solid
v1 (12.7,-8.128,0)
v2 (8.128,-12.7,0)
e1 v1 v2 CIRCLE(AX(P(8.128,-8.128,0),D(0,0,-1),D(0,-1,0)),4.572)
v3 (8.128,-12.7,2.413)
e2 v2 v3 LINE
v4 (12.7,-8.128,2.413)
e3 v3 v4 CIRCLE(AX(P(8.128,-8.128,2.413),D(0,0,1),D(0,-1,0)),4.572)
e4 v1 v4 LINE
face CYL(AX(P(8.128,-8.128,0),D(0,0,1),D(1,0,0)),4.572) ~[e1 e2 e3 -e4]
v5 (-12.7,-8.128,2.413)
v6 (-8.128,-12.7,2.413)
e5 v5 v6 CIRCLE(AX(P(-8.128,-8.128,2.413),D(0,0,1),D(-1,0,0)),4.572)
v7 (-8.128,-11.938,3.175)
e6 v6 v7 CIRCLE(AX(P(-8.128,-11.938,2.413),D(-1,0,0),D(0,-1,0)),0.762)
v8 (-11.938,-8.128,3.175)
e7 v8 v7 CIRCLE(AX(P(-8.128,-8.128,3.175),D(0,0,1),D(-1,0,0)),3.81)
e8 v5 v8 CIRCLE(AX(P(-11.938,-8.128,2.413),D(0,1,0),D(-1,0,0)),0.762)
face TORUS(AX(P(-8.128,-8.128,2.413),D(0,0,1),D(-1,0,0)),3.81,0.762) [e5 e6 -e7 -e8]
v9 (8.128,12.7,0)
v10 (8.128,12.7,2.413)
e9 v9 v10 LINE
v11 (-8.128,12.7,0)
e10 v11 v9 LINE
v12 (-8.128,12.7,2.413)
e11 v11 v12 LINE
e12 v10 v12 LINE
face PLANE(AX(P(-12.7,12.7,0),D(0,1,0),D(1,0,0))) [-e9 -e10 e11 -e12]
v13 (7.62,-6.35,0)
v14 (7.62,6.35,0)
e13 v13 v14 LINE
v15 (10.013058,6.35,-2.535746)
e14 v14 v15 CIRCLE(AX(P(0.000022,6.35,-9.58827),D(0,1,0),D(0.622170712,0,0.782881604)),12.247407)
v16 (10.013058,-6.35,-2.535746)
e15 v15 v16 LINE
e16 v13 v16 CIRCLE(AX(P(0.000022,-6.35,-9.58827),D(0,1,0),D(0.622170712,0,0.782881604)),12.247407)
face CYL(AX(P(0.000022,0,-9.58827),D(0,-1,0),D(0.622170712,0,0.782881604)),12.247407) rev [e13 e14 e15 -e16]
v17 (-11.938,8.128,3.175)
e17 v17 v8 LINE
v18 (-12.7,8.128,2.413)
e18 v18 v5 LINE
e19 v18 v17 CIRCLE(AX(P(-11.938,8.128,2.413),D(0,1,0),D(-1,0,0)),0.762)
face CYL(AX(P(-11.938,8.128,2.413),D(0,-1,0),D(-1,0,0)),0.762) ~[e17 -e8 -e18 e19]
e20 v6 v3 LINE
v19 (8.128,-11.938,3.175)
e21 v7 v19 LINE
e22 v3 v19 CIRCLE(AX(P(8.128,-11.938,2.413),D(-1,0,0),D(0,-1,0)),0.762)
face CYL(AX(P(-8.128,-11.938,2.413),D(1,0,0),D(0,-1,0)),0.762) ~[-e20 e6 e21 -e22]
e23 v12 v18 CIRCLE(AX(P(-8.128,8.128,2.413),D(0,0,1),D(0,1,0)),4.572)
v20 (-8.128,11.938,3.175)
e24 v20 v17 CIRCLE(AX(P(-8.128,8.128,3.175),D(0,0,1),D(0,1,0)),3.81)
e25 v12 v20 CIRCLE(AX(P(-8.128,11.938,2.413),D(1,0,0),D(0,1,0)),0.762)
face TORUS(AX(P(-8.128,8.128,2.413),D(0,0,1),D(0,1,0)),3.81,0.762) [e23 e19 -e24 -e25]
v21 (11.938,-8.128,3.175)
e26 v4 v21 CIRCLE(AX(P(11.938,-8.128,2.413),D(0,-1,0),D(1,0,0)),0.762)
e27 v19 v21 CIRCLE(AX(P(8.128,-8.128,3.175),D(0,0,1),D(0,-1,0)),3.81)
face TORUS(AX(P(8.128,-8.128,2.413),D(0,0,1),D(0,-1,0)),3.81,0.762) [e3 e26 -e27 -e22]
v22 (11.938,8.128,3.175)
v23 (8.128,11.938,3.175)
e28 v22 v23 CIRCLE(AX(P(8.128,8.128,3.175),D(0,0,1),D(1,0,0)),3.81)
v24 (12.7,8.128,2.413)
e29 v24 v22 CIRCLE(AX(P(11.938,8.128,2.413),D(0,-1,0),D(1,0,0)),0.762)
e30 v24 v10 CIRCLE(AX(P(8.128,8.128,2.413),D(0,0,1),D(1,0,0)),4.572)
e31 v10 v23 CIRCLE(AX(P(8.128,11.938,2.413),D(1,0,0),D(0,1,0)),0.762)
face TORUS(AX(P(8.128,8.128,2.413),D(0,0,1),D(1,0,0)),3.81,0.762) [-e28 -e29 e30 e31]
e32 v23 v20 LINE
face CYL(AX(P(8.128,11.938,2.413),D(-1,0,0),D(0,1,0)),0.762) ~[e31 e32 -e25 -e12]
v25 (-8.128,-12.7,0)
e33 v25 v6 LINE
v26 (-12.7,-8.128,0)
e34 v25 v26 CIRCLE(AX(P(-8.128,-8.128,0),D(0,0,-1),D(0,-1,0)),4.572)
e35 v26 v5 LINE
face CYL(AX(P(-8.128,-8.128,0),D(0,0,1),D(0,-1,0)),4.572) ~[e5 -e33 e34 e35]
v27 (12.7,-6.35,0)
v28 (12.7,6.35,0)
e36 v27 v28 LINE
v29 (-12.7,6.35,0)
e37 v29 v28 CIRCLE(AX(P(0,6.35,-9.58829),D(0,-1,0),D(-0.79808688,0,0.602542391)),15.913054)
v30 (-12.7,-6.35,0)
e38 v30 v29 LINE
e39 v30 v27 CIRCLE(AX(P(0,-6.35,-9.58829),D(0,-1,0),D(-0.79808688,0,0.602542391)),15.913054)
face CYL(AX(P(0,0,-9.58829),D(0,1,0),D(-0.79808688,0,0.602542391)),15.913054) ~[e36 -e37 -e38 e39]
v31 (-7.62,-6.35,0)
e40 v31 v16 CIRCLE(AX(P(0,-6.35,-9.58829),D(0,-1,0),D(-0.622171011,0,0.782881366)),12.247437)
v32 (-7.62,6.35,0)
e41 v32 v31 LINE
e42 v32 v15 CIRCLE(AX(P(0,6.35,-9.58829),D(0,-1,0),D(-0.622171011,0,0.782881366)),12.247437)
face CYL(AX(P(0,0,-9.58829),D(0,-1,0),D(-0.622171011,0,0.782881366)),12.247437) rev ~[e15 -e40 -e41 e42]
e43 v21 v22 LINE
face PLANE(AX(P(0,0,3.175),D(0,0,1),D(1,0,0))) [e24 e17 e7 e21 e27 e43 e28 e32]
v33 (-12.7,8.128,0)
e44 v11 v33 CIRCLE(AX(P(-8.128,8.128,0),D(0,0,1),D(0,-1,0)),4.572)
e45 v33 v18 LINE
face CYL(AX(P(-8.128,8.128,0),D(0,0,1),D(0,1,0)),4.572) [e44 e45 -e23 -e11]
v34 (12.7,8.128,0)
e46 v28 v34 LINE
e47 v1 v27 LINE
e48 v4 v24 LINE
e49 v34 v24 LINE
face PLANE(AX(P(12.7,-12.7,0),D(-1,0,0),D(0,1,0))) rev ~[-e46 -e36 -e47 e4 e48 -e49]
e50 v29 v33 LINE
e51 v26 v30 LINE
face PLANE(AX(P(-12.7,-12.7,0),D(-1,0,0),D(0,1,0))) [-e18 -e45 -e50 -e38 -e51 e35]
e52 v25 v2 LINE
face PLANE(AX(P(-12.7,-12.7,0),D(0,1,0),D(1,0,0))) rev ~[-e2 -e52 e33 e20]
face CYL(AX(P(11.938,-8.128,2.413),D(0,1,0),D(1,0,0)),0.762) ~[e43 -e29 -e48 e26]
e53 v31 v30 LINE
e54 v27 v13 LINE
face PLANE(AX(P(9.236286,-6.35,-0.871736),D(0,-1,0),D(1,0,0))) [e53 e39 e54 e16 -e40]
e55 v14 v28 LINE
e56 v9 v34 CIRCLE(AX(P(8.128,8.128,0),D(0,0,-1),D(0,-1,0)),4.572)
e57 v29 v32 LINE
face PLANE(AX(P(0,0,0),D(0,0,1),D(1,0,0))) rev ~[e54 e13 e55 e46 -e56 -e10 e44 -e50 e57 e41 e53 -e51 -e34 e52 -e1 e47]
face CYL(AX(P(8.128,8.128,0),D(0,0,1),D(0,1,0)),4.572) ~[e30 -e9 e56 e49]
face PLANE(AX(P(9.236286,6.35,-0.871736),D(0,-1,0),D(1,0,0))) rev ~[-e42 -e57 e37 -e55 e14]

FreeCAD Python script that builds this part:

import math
import FreeCAD as App
import Part
import Sketcher
Q = App.Units.Quantity


def edges_at(feature, points):
    """Names of the edges that pass closest to the given points."""
    edges = feature.Shape.Edges
    near = lambda p: min(range(len(edges)), key=lambda i: edges[i].distToShape(Part.Vertex(*p))[0])
    return sorted({f"Edge{near(p) + 1}" for p in points})


def add_polygon(sketch, points):
    """Adds a closed chain of lines whose ends are joined by coincident constraints."""
    first, n = sketch.GeometryCount, len(points)
    for a, b in zip(points, points[1:] + points[:1]):
        sketch.addGeometry(Part.LineSegment(App.Vector(*a, 0), App.Vector(*b, 0)), False)
    for i in range(n):
        sketch.addConstraint(Sketcher.Constraint("Coincident", first + i, 2, first + (i + 1) % n, 1))

doc = App.newDocument("Part")
body = doc.addObject("PartDesign::Body", "Body")

# Sketch on XY plane
sketch1 = body.newObject("Sketcher::SketchObject", "Sketch")
sketch1.AttachmentSupport = (doc.getObject("XY_Plane"), [""])
sketch1.MapMode = "FlatFace"
add_polygon(sketch1, [(-13, 13), (-13, -13), (13, -13), (13, 13)])  # lines 0-3
sketch1.addConstraint([
    Sketcher.Constraint("Vertical", 0),
    Sketcher.Constraint("Horizontal", 1),
    Sketcher.Constraint("Vertical", 2),
    Sketcher.Constraint("Horizontal", 3),
    Sketcher.Constraint("Symmetric", 0, 2, 2, 2, -1, 1),
    Sketcher.Constraint("Equal", 3, 0),
    Sketcher.Constraint("DistanceX", 1, 1, 1, 2, Q("1 in")),
])
pad1 = body.newObject("PartDesign::Pad", "Pad")
pad1.Profile = sketch1
pad1.Length = Q("0.125 in")

# Sketch on XY plane
sketch2 = body.newObject("Sketcher::SketchObject", "Sketch001")
sketch2.AttachmentSupport = (doc.getObject("XY_Plane"), [""])
sketch2.MapMode = "FlatFace"
add_polygon(sketch2, [(-13, -6), (-13, 6), (-8, 6), (-8, -6)])  # lines 0-3
sketch2.addConstraint([
    Sketcher.Constraint("Vertical", 0),
    Sketcher.Constraint("Horizontal", 1),
    Sketcher.Constraint("Vertical", 2),
    Sketcher.Constraint("Horizontal", 3),
    Sketcher.Constraint("DistanceX", 1, 1, 1, 2, Q("0.2 in")),
    Sketcher.Constraint("DistanceY", 0, 1, 0, 2, Q("0.5 in")),
    Sketcher.Constraint("DistanceX", 0, 2, -1, 1, Q("0.5 in")),
    Sketcher.Constraint("DistanceY", -1, 1, 0, 2, Q("0.25 in")),
])

# Sketch on XZ plane
sketch3 = body.newObject("Sketcher::SketchObject", "Sketch002")
sketch3.AttachmentSupport = (doc.getObject("XZ_Plane"), [""])
sketch3.MapMode = "FlatFace"
sketch3.addGeometry(Part.ArcOfCircle(Part.Circle(App.Vector(0, -10, 0), App.Vector(0, 0, 1), 14), math.radians(137), math.radians(403)), False)
sketch3.addConstraint([
    Sketcher.Constraint("Symmetric", 0, 1, 0, 2, -1, 1),
    Sketcher.Constraint("PointOnObject", 0, 3, -2),
    Sketcher.Constraint("Radius", 0, Q("0.55 in")),
    Sketcher.Constraint("DistanceX", 0, 1, -1, 1, Q("0.4 in")),
])
doc.recompute()

additivepipe = body.newObject("PartDesign::AdditivePipe", "AdditivePipe")
additivepipe.Profile = sketch2
additivepipe.Spine = (sketch3, ["Edge1"])

# Sketch on XZ plane
sketch4 = body.newObject("Sketcher::SketchObject", "Sketch003")
sketch4.AttachmentSupport = (doc.getObject("XZ_Plane"), [""])
sketch4.MapMode = "FlatFace"
sketch4.addGeometry([
    Part.LineSegment(App.Vector(10, -2.5, 0), App.Vector(10.2, 0, 0)),
    Part.LineSegment(App.Vector(10.2, 0, 0), App.Vector(7.6, 0, 0)),
    Part.ArcOfCircle(Part.Circle(App.Vector(0, -9.6, 0), App.Vector(0, 0, 1), 12.2), math.radians(35.16), math.radians(51.53)),
], False)
sketch4.addConstraint([
    Sketcher.Constraint("Coincident", 0, 2, 1, 1),
    Sketcher.Constraint("Coincident", 1, 2, 2, 2),
    Sketcher.Constraint("Coincident", 2, 1, 0, 1),
    Sketcher.Constraint("Horizontal", 1),
    Sketcher.Constraint("PointOnObject", 0, 2, -1),
    Sketcher.Constraint("DistanceX", 1, 2, 1, 1, Q("0.1 in")),
    Sketcher.Constraint("Distance", 0, Q("0.1 in")),
    Sketcher.Constraint("DistanceX", -1, 1, 0, 2, Q("0.4 in")),
    Sketcher.Constraint("Radius", 2, Q("12.247407 mm")),
    Sketcher.Constraint("DistanceY", 2, 3, -1, 1, Q("9.58827 mm")),
])
pad2 = body.newObject("PartDesign::Pad", "Pad001")
pad2.Profile = sketch4
pad2.Length = Q("0.5 in")
pad2.Midplane = True
doc.recompute()

fillet = body.newObject("PartDesign::Fillet", "Fillet")
fillet.Base = (pad2, edges_at(pad2, [
    (12.7, -12.7, 1.587),
    (12.7, 12.7, 1.587),
    (-12.7, 12.7, 1.587),
    (-12.7, -12.7, 1.587),
]))
fillet.Radius = Q("0.18 in")
doc.recompute()

fillet2 = body.newObject("PartDesign::Fillet", "Fillet001")
fillet2.Base = (fillet, edges_at(fillet, [
    (0, -12.7, 3.175),
    (-11.361, -11.361, 3.175),
    (11.361, -11.361, 3.175),
    (-12.7, 0, 3.175),
    (12.7, 0, 3.175),
    (-11.361, 11.361, 3.175),
    (11.361, 11.361, 3.175),
    (0, 12.7, 3.175),
]))
fillet2.Radius = Q("0.03 in")

doc.recompute()
